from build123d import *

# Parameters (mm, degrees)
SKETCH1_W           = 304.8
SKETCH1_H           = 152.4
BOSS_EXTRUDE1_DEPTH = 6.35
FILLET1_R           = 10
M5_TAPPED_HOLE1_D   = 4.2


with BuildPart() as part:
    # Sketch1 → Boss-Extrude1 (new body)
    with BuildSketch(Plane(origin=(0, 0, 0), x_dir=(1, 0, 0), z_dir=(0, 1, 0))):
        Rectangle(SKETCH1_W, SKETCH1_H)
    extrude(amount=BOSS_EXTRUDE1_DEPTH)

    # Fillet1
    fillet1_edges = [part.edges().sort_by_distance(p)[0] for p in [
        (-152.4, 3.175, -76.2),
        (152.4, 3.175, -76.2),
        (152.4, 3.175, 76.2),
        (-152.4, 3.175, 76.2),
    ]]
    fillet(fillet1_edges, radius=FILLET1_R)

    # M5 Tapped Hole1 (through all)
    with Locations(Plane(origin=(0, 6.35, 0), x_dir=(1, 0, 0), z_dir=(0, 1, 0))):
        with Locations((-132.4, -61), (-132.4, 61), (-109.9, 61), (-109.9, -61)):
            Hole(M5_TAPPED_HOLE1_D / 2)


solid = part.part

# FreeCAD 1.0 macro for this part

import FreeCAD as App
import Part
import Sketcher
Q = App.Units.Quantity


def edges_at(feature, points):
    """Names of the edges that pass closest to the given points."""
    edges = feature.Shape.Edges
    near = lambda p: min(range(len(edges)), key=lambda i: edges[i].distToShape(Part.Vertex(*p))[0])
    return sorted({f"Edge{near(p) + 1}" for p in points})

doc = App.newDocument("Part")
params = doc.addObject("Spreadsheet::Sheet", "Params")
for row, (alias, value) in enumerate([
    ("sketch1_width", "12 in"),
    ("sketch1_height", "6 in"),
    ("pad1_length", "0.25 in"),
    ("fillet_radius", "10 mm"),
    ("hole_diameter", "4.2 mm"),
], start=1):
    params.set(f"A{row}", alias)
    params.set(f"B{row}", "=" + value)
    params.setAlias(f"B{row}", alias)

body = doc.addObject("PartDesign::Body", "Body")

# Sketch on XZ plane
sketch1 = doc.addObject("Sketcher::SketchObject", "Sketch")
body.addObject(sketch1)
sketch1.AttachmentSupport = (doc.XZ_Plane, [""])
sketch1.MapMode = "FlatFace"
sketch1.addGeometry(Part.LineSegment(App.Vector(-152.4, -76.2, 0), App.Vector(-152.4, 76.2, 0)), False)
sketch1.addGeometry(Part.LineSegment(App.Vector(-152.4, 76.2, 0), App.Vector(152.4, 76.2, 0)), False)
sketch1.addGeometry(Part.LineSegment(App.Vector(152.4, 76.2, 0), App.Vector(152.4, -76.2, 0)), False)
sketch1.addGeometry(Part.LineSegment(App.Vector(152.4, -76.2, 0), App.Vector(-152.4, -76.2, 0)), False)
sketch1.addConstraint(Sketcher.Constraint("Coincident", 0, 2, 1, 1))
sketch1.addConstraint(Sketcher.Constraint("Coincident", 1, 2, 2, 1))
sketch1.addConstraint(Sketcher.Constraint("Coincident", 2, 2, 3, 1))
sketch1.addConstraint(Sketcher.Constraint("Coincident", 3, 2, 0, 1))
sketch1.addConstraint(Sketcher.Constraint("Vertical", 0))
sketch1.addConstraint(Sketcher.Constraint("Horizontal", 1))
sketch1.addConstraint(Sketcher.Constraint("Vertical", 2))
sketch1.addConstraint(Sketcher.Constraint("Horizontal", 3))
sketch1.addConstraint(Sketcher.Constraint("Symmetric", 0, 2, 2, 2, -1, 1))
sketch1.addConstraint(Sketcher.Constraint("DistanceX", 1, 1, 1, 2, Q("12 in")))
sketch1.addConstraint(Sketcher.Constraint("DistanceY", 0, 1, 0, 2, Q("6 in")))
sketch1.setExpression("Constraints[9]", "Params.sketch1_width")
sketch1.setExpression("Constraints[10]", "Params.sketch1_height")
pad1 = doc.addObject("PartDesign::Pad", "Pad")
body.addObject(pad1)
pad1.Profile = sketch1
pad1.setExpression("Length", "Params.pad1_length")
pad1.Reversed = True
doc.recompute()

fillet = doc.addObject("PartDesign::Fillet", "Fillet")
body.addObject(fillet)
fillet.Base = (pad1, edges_at(pad1, [
    (-152.4, 3.175, -76.2),
    (152.4, 3.175, -76.2),
    (152.4, 3.175, 76.2),
    (-152.4, 3.175, 76.2),
]))
fillet.setExpression("Radius", "Params.fillet_radius")

# Sketch on XZ plane
sketch2 = doc.addObject("Sketcher::SketchObject", "Sketch001")
body.addObject(sketch2)
sketch2.AttachmentSupport = (doc.XZ_Plane, [""])
sketch2.MapMode = "FlatFace"
sketch2.AttachmentOffset = App.Placement(App.Vector(0, 0, -0.25 * 25.4), App.Rotation())
sketch2.addGeometry(Part.Circle(App.Vector(-132.4, 61, 0), App.Vector(0, 0, 1), 2.1), False)
sketch2.addGeometry(Part.Circle(App.Vector(-132.4, -61, 0), App.Vector(0, 0, 1), 2.1), False)
sketch2.addGeometry(Part.Circle(App.Vector(-109.9, -61, 0), App.Vector(0, 0, 1), 2.1), False)
sketch2.addGeometry(Part.Circle(App.Vector(-109.9, 61, 0), App.Vector(0, 0, 1), 2.1), False)
sketch2.addConstraint(Sketcher.Constraint("Equal", 0, 1))
sketch2.addConstraint(Sketcher.Constraint("Equal", 1, 2))
sketch2.addConstraint(Sketcher.Constraint("Equal", 2, 3))
sketch2.addConstraint(Sketcher.Constraint("Symmetric", 0, 3, 1, 3, -1))
sketch2.addConstraint(Sketcher.Constraint("Symmetric", 2, 3, 3, 3, -1))
sketch2.addConstraint(Sketcher.Constraint("Horizontal", 1, 3, 2, 3))
sketch2.addConstraint(Sketcher.Constraint("Diameter", 0, 4.2))
sketch2.addConstraint(Sketcher.Constraint("DistanceX", 0, 3, -1, 1, 132.4))
sketch2.addConstraint(Sketcher.Constraint("DistanceY", -1, 1, 0, 3, 61.0))
sketch2.addConstraint(Sketcher.Constraint("DistanceX", 2, 3, -1, 1, 109.9))
doc.recompute()
hole = doc.addObject("PartDesign::Hole", "Hole")
body.addObject(hole)
hole.Profile = sketch2
hole.ThreadType = "None"
hole.setExpression("Diameter", "Params.hole_diameter")
hole.DepthType = "ThroughAll"
hole.Reversed = True

doc.recompute()
